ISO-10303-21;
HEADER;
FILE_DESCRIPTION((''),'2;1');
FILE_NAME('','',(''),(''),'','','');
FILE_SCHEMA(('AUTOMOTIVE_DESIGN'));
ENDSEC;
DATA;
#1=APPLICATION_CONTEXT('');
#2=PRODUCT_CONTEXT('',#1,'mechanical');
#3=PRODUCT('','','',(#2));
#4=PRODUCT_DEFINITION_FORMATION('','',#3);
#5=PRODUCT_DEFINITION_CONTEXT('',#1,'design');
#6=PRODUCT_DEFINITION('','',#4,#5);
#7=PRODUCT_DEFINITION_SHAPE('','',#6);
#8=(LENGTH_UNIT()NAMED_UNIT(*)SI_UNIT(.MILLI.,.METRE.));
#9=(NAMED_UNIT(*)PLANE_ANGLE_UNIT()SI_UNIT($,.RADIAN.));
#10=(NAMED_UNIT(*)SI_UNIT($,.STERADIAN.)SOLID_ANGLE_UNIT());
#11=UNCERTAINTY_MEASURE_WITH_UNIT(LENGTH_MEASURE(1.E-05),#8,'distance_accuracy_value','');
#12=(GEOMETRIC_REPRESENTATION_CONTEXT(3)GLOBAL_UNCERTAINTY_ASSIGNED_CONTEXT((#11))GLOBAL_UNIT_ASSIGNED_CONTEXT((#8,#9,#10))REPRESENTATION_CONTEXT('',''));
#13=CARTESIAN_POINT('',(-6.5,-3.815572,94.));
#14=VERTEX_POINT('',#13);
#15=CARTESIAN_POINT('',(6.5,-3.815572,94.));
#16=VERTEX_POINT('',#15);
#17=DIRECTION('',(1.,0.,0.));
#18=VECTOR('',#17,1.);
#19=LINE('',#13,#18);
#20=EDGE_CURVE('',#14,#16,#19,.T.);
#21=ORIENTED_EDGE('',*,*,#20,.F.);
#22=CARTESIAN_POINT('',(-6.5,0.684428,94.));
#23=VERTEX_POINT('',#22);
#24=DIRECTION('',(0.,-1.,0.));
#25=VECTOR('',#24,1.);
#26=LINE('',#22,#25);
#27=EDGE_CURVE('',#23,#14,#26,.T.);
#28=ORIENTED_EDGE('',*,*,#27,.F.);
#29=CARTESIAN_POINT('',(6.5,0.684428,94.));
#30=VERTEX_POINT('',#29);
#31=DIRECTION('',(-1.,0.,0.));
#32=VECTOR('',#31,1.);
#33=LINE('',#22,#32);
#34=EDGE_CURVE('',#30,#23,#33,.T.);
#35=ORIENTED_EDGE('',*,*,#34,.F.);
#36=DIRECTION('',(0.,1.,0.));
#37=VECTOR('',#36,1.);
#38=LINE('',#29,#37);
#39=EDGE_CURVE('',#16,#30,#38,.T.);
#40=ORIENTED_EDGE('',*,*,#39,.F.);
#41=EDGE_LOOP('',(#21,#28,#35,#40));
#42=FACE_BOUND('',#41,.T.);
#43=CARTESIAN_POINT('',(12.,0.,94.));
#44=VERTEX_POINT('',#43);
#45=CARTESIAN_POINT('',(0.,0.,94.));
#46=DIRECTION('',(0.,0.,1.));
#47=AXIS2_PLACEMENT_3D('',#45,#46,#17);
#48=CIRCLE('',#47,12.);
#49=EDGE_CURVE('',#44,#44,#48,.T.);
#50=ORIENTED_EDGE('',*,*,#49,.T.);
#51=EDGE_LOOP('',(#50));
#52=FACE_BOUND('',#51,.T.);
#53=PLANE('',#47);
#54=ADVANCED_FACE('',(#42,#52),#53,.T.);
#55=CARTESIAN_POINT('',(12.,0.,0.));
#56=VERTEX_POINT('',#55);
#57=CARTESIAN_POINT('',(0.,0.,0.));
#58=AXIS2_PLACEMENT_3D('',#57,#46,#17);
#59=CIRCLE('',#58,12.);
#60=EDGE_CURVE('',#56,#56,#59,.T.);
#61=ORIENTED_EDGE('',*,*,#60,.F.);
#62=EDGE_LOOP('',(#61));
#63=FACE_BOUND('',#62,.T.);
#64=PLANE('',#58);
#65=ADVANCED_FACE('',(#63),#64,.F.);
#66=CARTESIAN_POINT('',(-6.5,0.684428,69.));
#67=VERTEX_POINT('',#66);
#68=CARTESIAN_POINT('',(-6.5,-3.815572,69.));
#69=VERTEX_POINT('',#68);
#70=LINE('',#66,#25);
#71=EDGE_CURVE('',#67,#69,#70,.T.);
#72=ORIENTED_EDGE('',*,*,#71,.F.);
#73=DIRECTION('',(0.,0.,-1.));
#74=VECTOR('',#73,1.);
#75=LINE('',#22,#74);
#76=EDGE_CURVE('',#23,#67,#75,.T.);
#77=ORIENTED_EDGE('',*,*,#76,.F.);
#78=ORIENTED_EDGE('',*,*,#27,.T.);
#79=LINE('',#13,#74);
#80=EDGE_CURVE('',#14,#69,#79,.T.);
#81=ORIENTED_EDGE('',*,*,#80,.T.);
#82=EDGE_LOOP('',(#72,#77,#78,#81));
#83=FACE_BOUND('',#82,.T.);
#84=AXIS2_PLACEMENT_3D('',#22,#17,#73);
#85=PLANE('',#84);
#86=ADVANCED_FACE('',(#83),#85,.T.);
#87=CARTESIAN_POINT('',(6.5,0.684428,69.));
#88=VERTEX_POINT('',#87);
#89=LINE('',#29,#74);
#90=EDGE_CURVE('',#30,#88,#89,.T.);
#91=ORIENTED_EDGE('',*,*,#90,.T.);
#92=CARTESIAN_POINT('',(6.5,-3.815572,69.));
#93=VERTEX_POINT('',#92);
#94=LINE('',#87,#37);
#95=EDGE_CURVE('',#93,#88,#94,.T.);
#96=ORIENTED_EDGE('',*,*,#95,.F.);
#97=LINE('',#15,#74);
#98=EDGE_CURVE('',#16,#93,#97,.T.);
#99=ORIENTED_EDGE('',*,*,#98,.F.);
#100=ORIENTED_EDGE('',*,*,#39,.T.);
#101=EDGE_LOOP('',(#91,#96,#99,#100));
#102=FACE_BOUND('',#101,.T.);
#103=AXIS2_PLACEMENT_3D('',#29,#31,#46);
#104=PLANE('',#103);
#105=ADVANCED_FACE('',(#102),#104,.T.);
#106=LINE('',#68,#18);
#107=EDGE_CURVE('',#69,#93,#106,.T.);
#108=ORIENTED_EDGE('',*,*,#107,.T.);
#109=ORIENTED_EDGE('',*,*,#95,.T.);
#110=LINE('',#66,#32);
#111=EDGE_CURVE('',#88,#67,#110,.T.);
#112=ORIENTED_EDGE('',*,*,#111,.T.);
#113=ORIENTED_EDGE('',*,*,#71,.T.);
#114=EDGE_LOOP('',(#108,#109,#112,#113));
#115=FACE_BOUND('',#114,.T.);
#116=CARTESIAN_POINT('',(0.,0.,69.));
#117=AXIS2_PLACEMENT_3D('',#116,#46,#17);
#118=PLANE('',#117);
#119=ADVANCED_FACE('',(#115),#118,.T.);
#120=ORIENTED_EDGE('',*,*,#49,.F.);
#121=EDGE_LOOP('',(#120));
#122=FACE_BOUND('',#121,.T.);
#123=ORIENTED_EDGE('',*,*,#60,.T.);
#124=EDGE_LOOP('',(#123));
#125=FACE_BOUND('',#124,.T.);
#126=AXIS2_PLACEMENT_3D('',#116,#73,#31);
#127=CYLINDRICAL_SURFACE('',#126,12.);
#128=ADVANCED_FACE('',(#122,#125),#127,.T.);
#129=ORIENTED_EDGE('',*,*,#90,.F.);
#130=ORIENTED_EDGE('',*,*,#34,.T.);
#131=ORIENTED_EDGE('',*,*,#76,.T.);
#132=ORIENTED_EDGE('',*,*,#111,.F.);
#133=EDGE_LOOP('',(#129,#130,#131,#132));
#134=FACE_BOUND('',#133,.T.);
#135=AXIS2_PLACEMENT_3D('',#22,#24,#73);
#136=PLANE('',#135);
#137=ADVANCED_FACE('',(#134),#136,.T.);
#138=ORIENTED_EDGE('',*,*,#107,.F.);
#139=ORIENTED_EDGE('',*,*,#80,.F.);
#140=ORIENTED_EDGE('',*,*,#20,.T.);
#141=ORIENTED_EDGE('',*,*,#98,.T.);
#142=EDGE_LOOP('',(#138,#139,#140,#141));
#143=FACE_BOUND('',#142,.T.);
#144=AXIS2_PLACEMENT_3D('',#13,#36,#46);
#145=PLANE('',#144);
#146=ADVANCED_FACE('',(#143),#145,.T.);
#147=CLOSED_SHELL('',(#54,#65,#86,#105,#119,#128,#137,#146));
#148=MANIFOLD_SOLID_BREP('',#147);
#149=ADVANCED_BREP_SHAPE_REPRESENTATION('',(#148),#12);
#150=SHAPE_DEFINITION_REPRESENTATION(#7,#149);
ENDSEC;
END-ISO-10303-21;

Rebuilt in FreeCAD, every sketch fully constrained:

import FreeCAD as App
import Part
import Sketcher

V = App.Vector
Q = App.Units.Quantity

doc = App.newDocument("Part")
body = doc.addObject("PartDesign::Body", "Body")

# Sketch on XY plane
sketch1 = body.newObject("Sketcher::SketchObject", "Sketch")
sketch1.AttachmentSupport = (doc.getObject("XY_Plane"), [""])
sketch1.MapMode = "FlatFace"
sketch1.addGeometry(Part.Circle(V(0, 0, 0), V(0, 0, 1), 12), False)
sketch1.addConstraint([
    Sketcher.Constraint("Coincident", 0, 3, -1, 1),
    Sketcher.Constraint("Diameter", 0, Q("24 mm")),
])
pad1 = body.newObject("PartDesign::Pad", "Pad")
pad1.Profile = sketch1
pad1.Length = 69

# Sketch on XY plane
sketch2 = body.newObject("Sketcher::SketchObject", "Sketch001")
sketch2.AttachmentSupport = (doc.getObject("XY_Plane"), [""])
sketch2.MapMode = "FlatFace"
sketch2.AttachmentOffset = App.Placement(V(0, 0, 69), App.Rotation())
sketch2.addGeometry([
    Part.Circle(V(0, 0, 0), V(0, 0, 1), 12),  # 0
    Part.LineSegment(V(6.5, -3.815572, 0), V(-6.5, -3.815572, 0)),  # 1
    Part.LineSegment(V(-6.5, -3.815572, 0), V(-6.5, 0.684428, 0)),  # 2
    Part.LineSegment(V(-6.5, 0.684428, 0), V(6.5, 0.684428, 0)),  # 3
    Part.LineSegment(V(6.5, 0.684428, 0), V(6.5, -3.815572, 0)),  # 4
], False)
sketch2.addConstraint([
    Sketcher.Constraint("Coincident", 1, 2, 2, 1),
    Sketcher.Constraint("Coincident", 2, 2, 3, 1),
    Sketcher.Constraint("Coincident", 3, 2, 4, 1),
    Sketcher.Constraint("Coincident", 4, 2, 1, 1),
    Sketcher.Constraint("Horizontal", 1),
    Sketcher.Constraint("Vertical", 2),
    Sketcher.Constraint("Horizontal", 3),
    Sketcher.Constraint("Vertical", 4),
    Sketcher.Constraint("Coincident", 0, 3, -1, 1),
    Sketcher.Constraint("Diameter", 0, Q("24 mm")),
    Sketcher.Constraint("DistanceX", 1, 2, 1, 1, Q("13 mm")),
    Sketcher.Constraint("DistanceY", 2, 1, 2, 2, Q("4.5 mm")),
    Sketcher.Constraint("DistanceX", 1, 2, -1, 1, Q("6.5 mm")),
    Sketcher.Constraint("DistanceY", 1, 2, -1, 1, Q("3.815572 mm")),
])
pad2 = body.newObject("PartDesign::Pad", "Pad001")
pad2.Profile = sketch2
pad2.Length = 25

doc.recompute()
